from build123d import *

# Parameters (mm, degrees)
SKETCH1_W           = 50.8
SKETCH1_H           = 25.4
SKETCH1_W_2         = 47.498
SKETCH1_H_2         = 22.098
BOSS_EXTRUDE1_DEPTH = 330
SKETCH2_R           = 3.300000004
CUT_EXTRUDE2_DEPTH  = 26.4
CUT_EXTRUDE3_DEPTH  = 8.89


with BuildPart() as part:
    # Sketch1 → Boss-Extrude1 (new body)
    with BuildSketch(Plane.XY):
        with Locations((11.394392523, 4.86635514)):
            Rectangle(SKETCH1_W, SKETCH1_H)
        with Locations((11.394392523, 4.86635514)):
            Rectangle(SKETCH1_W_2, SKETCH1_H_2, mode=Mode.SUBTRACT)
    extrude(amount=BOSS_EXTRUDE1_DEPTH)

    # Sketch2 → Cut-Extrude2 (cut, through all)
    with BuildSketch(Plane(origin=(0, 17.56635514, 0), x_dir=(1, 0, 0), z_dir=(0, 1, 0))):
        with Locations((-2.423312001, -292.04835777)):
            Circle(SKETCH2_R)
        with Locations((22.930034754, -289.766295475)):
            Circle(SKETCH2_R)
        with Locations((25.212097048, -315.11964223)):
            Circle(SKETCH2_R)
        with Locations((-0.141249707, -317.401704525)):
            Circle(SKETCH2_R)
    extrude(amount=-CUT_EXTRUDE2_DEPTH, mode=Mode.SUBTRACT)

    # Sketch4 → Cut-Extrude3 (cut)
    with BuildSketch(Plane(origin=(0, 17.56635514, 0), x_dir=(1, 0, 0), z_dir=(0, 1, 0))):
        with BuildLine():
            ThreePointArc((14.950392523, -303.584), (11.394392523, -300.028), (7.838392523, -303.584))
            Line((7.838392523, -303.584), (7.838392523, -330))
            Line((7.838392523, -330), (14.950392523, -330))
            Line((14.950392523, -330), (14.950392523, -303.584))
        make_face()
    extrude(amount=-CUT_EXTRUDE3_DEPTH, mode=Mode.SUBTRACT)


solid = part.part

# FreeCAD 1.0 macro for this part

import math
import FreeCAD as App
import Part
import Sketcher
from FreeCAD import Vector
Q = App.Units.Quantity

doc = App.newDocument("Part")
body = doc.addObject("PartDesign::Body", "Body")

sketch1 = doc.addObject("Sketcher::SketchObject", "Sketch")
body.addObject(sketch1)
sketch1.AttachmentSupport = (doc.XY_Plane, [""])
sketch1.MapMode = "FlatFace"
sketch1.addGeometry(Part.LineSegment(Vector(-14.005607, 17.566355, 0), Vector(-14.005607, -7.833645, 0)), False)
sketch1.addGeometry(Part.LineSegment(Vector(-14.005607, -7.833645, 0), Vector(36.794393, -7.833645, 0)), False)
sketch1.addGeometry(Part.LineSegment(Vector(36.794393, -7.833645, 0), Vector(36.794393, 17.566355, 0)), False)
sketch1.addGeometry(Part.LineSegment(Vector(36.794393, 17.566355, 0), Vector(-14.005607, 17.566355, 0)), False)
sketch1.addGeometry(Part.LineSegment(Vector(35.143393, -6.182645, 0), Vector(-12.354607, -6.182645, 0)), False)
sketch1.addGeometry(Part.LineSegment(Vector(-12.354607, -6.182645, 0), Vector(-12.354607, 15.915355, 0)), False)
sketch1.addGeometry(Part.LineSegment(Vector(-12.354607, 15.915355, 0), Vector(35.143393, 15.915355, 0)), False)
sketch1.addGeometry(Part.LineSegment(Vector(35.143393, 15.915355, 0), Vector(35.143393, -6.182645, 0)), False)
sketch1.addConstraint(Sketcher.Constraint("Coincident", 0, 2, 1, 1))
sketch1.addConstraint(Sketcher.Constraint("Coincident", 1, 2, 2, 1))
sketch1.addConstraint(Sketcher.Constraint("Coincident", 2, 2, 3, 1))
sketch1.addConstraint(Sketcher.Constraint("Coincident", 3, 2, 0, 1))
sketch1.addConstraint(Sketcher.Constraint("Coincident", 4, 2, 5, 1))
sketch1.addConstraint(Sketcher.Constraint("Coincident", 5, 2, 6, 1))
sketch1.addConstraint(Sketcher.Constraint("Coincident", 6, 2, 7, 1))
sketch1.addConstraint(Sketcher.Constraint("Coincident", 7, 2, 4, 1))
sketch1.addConstraint(Sketcher.Constraint("Vertical", 0))
sketch1.addConstraint(Sketcher.Constraint("Horizontal", 1))
sketch1.addConstraint(Sketcher.Constraint("Vertical", 2))
sketch1.addConstraint(Sketcher.Constraint("Horizontal", 3))
sketch1.addConstraint(Sketcher.Constraint("Horizontal", 4))
sketch1.addConstraint(Sketcher.Constraint("Vertical", 5))
sketch1.addConstraint(Sketcher.Constraint("Horizontal", 6))
sketch1.addConstraint(Sketcher.Constraint("Vertical", 7))
sketch1.addConstraint(Sketcher.Constraint("DistanceX", 1, 1, 1, 2, Q("2 in")))
sketch1.addConstraint(Sketcher.Constraint("DistanceY", 0, 2, 0, 1, Q("1 in")))
sketch1.addConstraint(Sketcher.Constraint("DistanceX", 4, 2, 4, 1, Q("1.87 in")))
sketch1.addConstraint(Sketcher.Constraint("DistanceY", 5, 1, 5, 2, Q("0.87 in")))
sketch1.addConstraint(Sketcher.Constraint("DistanceX", 0, 2, 4, 2, Q("0.065 in")))
sketch1.addConstraint(Sketcher.Constraint("DistanceY", 0, 2, 4, 2, Q("0.065 in")))
sketch1.addConstraint(Sketcher.Constraint("DistanceX", 0, 2, -1, 1, 14.005607))
sketch1.addConstraint(Sketcher.Constraint("DistanceY", 0, 2, -1, 1, 7.833645))
pad1 = doc.addObject("PartDesign::Pad", "Pad")
body.addObject(pad1)
pad1.Profile = sketch1
pad1.Length = 330

sketch2 = doc.addObject("Sketcher::SketchObject", "Sketch001")
body.addObject(sketch2)
sketch2.AttachmentSupport = (doc.XZ_Plane, [""])
sketch2.MapMode = "FlatFace"
sketch2.AttachmentOffset = App.Placement(Vector(0, 0, -17.566355), App.Rotation())
sketch2.addGeometry(Part.Circle(Vector(-2.423312, 292.048358, 0), Vector(0, 0, 1), 3.3), False)
sketch2.addGeometry(Part.Circle(Vector(22.930035, 289.766295, 0), Vector(0, 0, 1), 3.3), False)
sketch2.addGeometry(Part.Circle(Vector(25.212097, 315.119642, 0), Vector(0, 0, 1), 3.3), False)
sketch2.addGeometry(Part.Circle(Vector(-0.14125, 317.401705, 0), Vector(0, 0, 1), 3.3), False)
sketch2.addConstraint(Sketcher.Constraint("Equal", 0, 1))
sketch2.addConstraint(Sketcher.Constraint("Equal", 1, 2))
sketch2.addConstraint(Sketcher.Constraint("Equal", 2, 3))
sketch2.addConstraint(Sketcher.Constraint("Diameter", 0, 6.6))
sketch2.addConstraint(Sketcher.Constraint("DistanceX", 3, 3, -1, 1, 0.14125))
sketch2.addConstraint(Sketcher.Constraint("DistanceX", 0, 3, 2, 3, 27.635409))
sketch2.addConstraint(Sketcher.Constraint("DistanceY", 1, 3, 3, 3, 27.635409))
sketch2.addConstraint(Sketcher.Constraint("DistanceX", 0, 3, -1, 1, 2.423312))
sketch2.addConstraint(Sketcher.Constraint("DistanceY", -1, 1, 0, 3, 292.048358))
sketch2.addConstraint(Sketcher.Constraint("DistanceX", -1, 1, 1, 3, 22.930035))
sketch2.addConstraint(Sketcher.Constraint("DistanceY", -1, 1, 1, 3, 289.766295))
sketch2.addConstraint(Sketcher.Constraint("DistanceY", -1, 1, 2, 3, 315.119642))
pocket1 = doc.addObject("PartDesign::Pocket", "Pocket")
body.addObject(pocket1)
pocket1.Profile = sketch2
pocket1.Type = "ThroughAll"
pocket1.Reversed = True

sketch3 = doc.addObject("Sketcher::SketchObject", "Sketch002")
body.addObject(sketch3)
sketch3.AttachmentSupport = (doc.XZ_Plane, [""])
sketch3.MapMode = "FlatFace"
sketch3.AttachmentOffset = App.Placement(Vector(0, 0, -17.566355), App.Rotation())
sketch3.addGeometry(Part.ArcOfCircle(Part.Circle(Vector(11.394393, 303.584, 0), Vector(0, 0, 1), 3.556), math.radians(180), math.radians(360)), False)
sketch3.addGeometry(Part.LineSegment(Vector(7.838393, 303.584, 0), Vector(7.838393, 330, 0)), False)
sketch3.addGeometry(Part.LineSegment(Vector(7.838393, 330, 0), Vector(14.950393, 330, 0)), False)
sketch3.addGeometry(Part.LineSegment(Vector(14.950393, 330, 0), Vector(14.950393, 303.584, 0)), False)
sketch3.addConstraint(Sketcher.Constraint("Tangent", 0, 1, 1, 1))
sketch3.addConstraint(Sketcher.Constraint("Coincident", 1, 2, 2, 1))
sketch3.addConstraint(Sketcher.Constraint("Coincident", 2, 2, 3, 1))
sketch3.addConstraint(Sketcher.Constraint("Tangent", 3, 2, 0, 2))
sketch3.addConstraint(Sketcher.Constraint("Vertical", 1))
sketch3.addConstraint(Sketcher.Constraint("Horizontal", 2))
sketch3.addConstraint(Sketcher.Constraint("Vertical", 3))
sketch3.addConstraint(Sketcher.Constraint("Radius", 0, Q("0.14 in")))
sketch3.addConstraint(Sketcher.Constraint("DistanceY", 1, 1, 1, 2, Q("1.04 in")))
sketch3.addConstraint(Sketcher.Constraint("DistanceY", -1, 1, 0, 3, 303.584))
sketch3.addConstraint(Sketcher.Constraint("DistanceX", -1, 1, 0, 3, 11.394393))
pocket2 = doc.addObject("PartDesign::Pocket", "Pocket001")
body.addObject(pocket2)
pocket2.Profile = sketch3
pocket2.Length = Q("0.35 in")
pocket2.Reversed = True

doc.recompute()
